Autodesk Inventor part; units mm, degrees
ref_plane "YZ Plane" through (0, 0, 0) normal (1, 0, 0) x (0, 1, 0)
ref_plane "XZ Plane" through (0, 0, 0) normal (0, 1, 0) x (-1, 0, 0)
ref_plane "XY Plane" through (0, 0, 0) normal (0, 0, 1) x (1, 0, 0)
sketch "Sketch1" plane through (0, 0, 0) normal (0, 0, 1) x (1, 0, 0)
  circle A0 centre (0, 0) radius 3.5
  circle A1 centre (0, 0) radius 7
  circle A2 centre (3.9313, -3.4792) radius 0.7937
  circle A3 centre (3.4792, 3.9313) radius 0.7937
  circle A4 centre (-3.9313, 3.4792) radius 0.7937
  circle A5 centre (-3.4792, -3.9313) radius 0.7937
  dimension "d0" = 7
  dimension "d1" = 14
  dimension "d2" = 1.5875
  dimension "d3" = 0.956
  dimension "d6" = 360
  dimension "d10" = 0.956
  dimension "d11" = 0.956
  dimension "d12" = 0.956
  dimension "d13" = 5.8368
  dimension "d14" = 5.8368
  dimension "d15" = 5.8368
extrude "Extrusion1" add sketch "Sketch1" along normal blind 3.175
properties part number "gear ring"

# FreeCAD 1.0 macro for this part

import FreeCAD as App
import Part
import Sketcher
Q = App.Units.Quantity

doc = App.newDocument("Part")
body = doc.addObject("PartDesign::Body", "Body")

# Sketch on XY plane
sketch1 = body.newObject("Sketcher::SketchObject", "Sketch")
sketch1.AttachmentSupport = (doc.getObject("XY_Plane"), [""])
sketch1.MapMode = "FlatFace"
sketch1.addGeometry([
    Part.Circle(App.Vector(0, 0, 0), App.Vector(0, 0, 1), 7),  # 0
    Part.Circle(App.Vector(-3.5, -3.9, 0), App.Vector(0, 0, 1), 0.8),  # 1
    Part.Circle(App.Vector(3.9, -3.5, 0), App.Vector(0, 0, 1), 0.8),  # 2
    Part.Circle(App.Vector(-3.9, 3.5, 0), App.Vector(0, 0, 1), 0.8),  # 3
    Part.Circle(App.Vector(0, 0, 0), App.Vector(0, 0, 1), 3.5),  # 4
    Part.Circle(App.Vector(3.5, 3.9, 0), App.Vector(0, 0, 1), 0.8),  # 5
], False)
sketch1.addConstraint([
    Sketcher.Constraint("Coincident", 0, 3, -1, 1),
    Sketcher.Constraint("Coincident", 4, 3, -1, 1),
    Sketcher.Constraint("Equal", 1, 2),
    Sketcher.Constraint("Equal", 2, 3),
    Sketcher.Constraint("Equal", 3, 5),
    Sketcher.Constraint("Symmetric", 2, 3, 3, 3, -1, 1),
    Sketcher.Constraint("Symmetric", 1, 3, 5, 3, -1, 1),
    Sketcher.Constraint("Diameter", 1, Q("0.0625 in")),
    Sketcher.Constraint("Diameter", 4, Q("0.2756 in")),
    Sketcher.Constraint("Diameter", 0, 14.0),
    Sketcher.Constraint("DistanceY", 1, 3, 2, 3, Q("0.0178 in")),
    Sketcher.Constraint("DistanceX", 3, 3, 1, 3, Q("0.0178 in")),
    Sketcher.Constraint("DistanceX", 1, 3, -1, 1, 3.4792),
    Sketcher.Constraint("DistanceY", 1, 3, -1, 1, 3.9313),
])
pad1 = body.newObject("PartDesign::Pad", "Pad")
pad1.Profile = sketch1
pad1.Length = Q("0.125 in")

doc.recompute()
